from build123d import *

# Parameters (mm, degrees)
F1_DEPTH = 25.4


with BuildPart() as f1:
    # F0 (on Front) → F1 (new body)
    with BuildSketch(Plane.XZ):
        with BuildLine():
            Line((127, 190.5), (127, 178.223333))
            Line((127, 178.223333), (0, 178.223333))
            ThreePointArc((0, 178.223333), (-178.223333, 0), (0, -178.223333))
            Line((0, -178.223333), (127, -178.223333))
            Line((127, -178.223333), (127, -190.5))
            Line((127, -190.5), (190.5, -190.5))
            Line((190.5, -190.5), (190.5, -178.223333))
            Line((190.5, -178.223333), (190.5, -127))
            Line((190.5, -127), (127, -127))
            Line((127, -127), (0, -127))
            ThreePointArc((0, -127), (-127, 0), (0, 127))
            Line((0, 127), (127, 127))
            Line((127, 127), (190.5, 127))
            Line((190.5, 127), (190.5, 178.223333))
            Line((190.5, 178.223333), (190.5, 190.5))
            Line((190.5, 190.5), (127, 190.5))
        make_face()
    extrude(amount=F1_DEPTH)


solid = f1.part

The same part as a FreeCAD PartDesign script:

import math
import FreeCAD as App
import Part
import Sketcher
Q = App.Units.Quantity

doc = App.newDocument("Part")
params = doc.addObject("Spreadsheet::Sheet", "Params")
for row, (alias, value) in enumerate([
    ("sketch1_radius", "5 in"),
    ("sketch1_width", "5 in"),
    ("sketch1_width2", "2.5 in"),
    ("pad1_length", "1 in"),
], start=1):
    params.set(f"A{row}", alias)
    params.set(f"B{row}", "=" + value)
    params.setAlias(f"B{row}", alias)

body = doc.addObject("PartDesign::Body", "Body")

sketch1 = doc.addObject("Sketcher::SketchObject", "Sketch")
body.addObject(sketch1)
sketch1.AttachmentSupport = (doc.XZ_Plane, [""])
sketch1.MapMode = "FlatFace"
sketch1.addGeometry([
    Part.LineSegment(App.Vector(127, 190, 0), App.Vector(127, 178, 0)),
    Part.LineSegment(App.Vector(127, 178, 0), App.Vector(0, 178, 0)),
    Part.ArcOfCircle(Part.Circle(App.Vector(0, 0, 0), App.Vector(0, 0, 1), 178), math.radians(90), math.radians(270)),
    Part.LineSegment(App.Vector(0, -178, 0), App.Vector(127, -178, 0)),
    Part.LineSegment(App.Vector(127, -178, 0), App.Vector(127, -190, 0)),
    Part.LineSegment(App.Vector(127, -190, 0), App.Vector(190, -190, 0)),
    Part.LineSegment(App.Vector(190, -190, 0), App.Vector(190, -127, 0)),
    Part.LineSegment(App.Vector(190, -127, 0), App.Vector(0, -127, 0)),
    Part.ArcOfCircle(Part.Circle(App.Vector(0, 0, 0), App.Vector(0, 0, 1), 127), math.radians(90), math.radians(270)),
    Part.LineSegment(App.Vector(0, 127, 0), App.Vector(190, 127, 0)),
    Part.LineSegment(App.Vector(190, 127, 0), App.Vector(190, 190, 0)),
    Part.LineSegment(App.Vector(190, 190, 0), App.Vector(127, 190, 0)),
], False)
sketch1.addConstraint([
    Sketcher.Constraint("Coincident", 0, 2, 1, 1),
    Sketcher.Constraint("Tangent", 1, 2, 2, 1),
    Sketcher.Constraint("Tangent", 2, 2, 3, 1),
    Sketcher.Constraint("Coincident", 3, 2, 4, 1),
    Sketcher.Constraint("Coincident", 4, 2, 5, 1),
    Sketcher.Constraint("Coincident", 5, 2, 6, 1),
    Sketcher.Constraint("Coincident", 6, 2, 7, 1),
    Sketcher.Constraint("Tangent", 7, 2, 8, 2),
    Sketcher.Constraint("Tangent", 8, 1, 9, 1),
    Sketcher.Constraint("Coincident", 9, 2, 10, 1),
    Sketcher.Constraint("Coincident", 10, 2, 11, 1),
    Sketcher.Constraint("Coincident", 11, 2, 0, 1),
    Sketcher.Constraint("Vertical", 0),
    Sketcher.Constraint("Horizontal", 1),
    Sketcher.Constraint("Horizontal", 3),
    Sketcher.Constraint("Vertical", 4),
    Sketcher.Constraint("Horizontal", 5),
    Sketcher.Constraint("Vertical", 6),
    Sketcher.Constraint("Horizontal", 7),
    Sketcher.Constraint("Horizontal", 9),
    Sketcher.Constraint("Vertical", 10),
    Sketcher.Constraint("Horizontal", 11),
    Sketcher.Constraint("Coincident", 2, 3, -1, 1),
    Sketcher.Constraint("Coincident", 8, 3, -1, 1),
    Sketcher.Constraint("Symmetric", 5, 2, 10, 2, -1),
    Sketcher.Constraint("Vertical", 0, 2, 3, 2),
    Sketcher.Constraint("Equal", 11, 6),
    Sketcher.Constraint("Radius", 8, Q("5 in")),
    Sketcher.Constraint("DistanceX", 1, 2, 1, 1, Q("5 in")),
    Sketcher.Constraint("DistanceX", 5, 1, 5, 2, Q("2.5 in")),
    Sketcher.Constraint("Radius", 2, Q("178.223333 mm")),
])
sketch1.setExpression("Constraints[27]", "Params.sketch1_radius")
sketch1.setExpression("Constraints[28]", "Params.sketch1_width")
sketch1.setExpression("Constraints[29]", "Params.sketch1_width2")
pad1 = doc.addObject("PartDesign::Pad", "Pad")
body.addObject(pad1)
pad1.Profile = sketch1
pad1.setExpression("Length", "Params.pad1_length")

doc.recompute()
